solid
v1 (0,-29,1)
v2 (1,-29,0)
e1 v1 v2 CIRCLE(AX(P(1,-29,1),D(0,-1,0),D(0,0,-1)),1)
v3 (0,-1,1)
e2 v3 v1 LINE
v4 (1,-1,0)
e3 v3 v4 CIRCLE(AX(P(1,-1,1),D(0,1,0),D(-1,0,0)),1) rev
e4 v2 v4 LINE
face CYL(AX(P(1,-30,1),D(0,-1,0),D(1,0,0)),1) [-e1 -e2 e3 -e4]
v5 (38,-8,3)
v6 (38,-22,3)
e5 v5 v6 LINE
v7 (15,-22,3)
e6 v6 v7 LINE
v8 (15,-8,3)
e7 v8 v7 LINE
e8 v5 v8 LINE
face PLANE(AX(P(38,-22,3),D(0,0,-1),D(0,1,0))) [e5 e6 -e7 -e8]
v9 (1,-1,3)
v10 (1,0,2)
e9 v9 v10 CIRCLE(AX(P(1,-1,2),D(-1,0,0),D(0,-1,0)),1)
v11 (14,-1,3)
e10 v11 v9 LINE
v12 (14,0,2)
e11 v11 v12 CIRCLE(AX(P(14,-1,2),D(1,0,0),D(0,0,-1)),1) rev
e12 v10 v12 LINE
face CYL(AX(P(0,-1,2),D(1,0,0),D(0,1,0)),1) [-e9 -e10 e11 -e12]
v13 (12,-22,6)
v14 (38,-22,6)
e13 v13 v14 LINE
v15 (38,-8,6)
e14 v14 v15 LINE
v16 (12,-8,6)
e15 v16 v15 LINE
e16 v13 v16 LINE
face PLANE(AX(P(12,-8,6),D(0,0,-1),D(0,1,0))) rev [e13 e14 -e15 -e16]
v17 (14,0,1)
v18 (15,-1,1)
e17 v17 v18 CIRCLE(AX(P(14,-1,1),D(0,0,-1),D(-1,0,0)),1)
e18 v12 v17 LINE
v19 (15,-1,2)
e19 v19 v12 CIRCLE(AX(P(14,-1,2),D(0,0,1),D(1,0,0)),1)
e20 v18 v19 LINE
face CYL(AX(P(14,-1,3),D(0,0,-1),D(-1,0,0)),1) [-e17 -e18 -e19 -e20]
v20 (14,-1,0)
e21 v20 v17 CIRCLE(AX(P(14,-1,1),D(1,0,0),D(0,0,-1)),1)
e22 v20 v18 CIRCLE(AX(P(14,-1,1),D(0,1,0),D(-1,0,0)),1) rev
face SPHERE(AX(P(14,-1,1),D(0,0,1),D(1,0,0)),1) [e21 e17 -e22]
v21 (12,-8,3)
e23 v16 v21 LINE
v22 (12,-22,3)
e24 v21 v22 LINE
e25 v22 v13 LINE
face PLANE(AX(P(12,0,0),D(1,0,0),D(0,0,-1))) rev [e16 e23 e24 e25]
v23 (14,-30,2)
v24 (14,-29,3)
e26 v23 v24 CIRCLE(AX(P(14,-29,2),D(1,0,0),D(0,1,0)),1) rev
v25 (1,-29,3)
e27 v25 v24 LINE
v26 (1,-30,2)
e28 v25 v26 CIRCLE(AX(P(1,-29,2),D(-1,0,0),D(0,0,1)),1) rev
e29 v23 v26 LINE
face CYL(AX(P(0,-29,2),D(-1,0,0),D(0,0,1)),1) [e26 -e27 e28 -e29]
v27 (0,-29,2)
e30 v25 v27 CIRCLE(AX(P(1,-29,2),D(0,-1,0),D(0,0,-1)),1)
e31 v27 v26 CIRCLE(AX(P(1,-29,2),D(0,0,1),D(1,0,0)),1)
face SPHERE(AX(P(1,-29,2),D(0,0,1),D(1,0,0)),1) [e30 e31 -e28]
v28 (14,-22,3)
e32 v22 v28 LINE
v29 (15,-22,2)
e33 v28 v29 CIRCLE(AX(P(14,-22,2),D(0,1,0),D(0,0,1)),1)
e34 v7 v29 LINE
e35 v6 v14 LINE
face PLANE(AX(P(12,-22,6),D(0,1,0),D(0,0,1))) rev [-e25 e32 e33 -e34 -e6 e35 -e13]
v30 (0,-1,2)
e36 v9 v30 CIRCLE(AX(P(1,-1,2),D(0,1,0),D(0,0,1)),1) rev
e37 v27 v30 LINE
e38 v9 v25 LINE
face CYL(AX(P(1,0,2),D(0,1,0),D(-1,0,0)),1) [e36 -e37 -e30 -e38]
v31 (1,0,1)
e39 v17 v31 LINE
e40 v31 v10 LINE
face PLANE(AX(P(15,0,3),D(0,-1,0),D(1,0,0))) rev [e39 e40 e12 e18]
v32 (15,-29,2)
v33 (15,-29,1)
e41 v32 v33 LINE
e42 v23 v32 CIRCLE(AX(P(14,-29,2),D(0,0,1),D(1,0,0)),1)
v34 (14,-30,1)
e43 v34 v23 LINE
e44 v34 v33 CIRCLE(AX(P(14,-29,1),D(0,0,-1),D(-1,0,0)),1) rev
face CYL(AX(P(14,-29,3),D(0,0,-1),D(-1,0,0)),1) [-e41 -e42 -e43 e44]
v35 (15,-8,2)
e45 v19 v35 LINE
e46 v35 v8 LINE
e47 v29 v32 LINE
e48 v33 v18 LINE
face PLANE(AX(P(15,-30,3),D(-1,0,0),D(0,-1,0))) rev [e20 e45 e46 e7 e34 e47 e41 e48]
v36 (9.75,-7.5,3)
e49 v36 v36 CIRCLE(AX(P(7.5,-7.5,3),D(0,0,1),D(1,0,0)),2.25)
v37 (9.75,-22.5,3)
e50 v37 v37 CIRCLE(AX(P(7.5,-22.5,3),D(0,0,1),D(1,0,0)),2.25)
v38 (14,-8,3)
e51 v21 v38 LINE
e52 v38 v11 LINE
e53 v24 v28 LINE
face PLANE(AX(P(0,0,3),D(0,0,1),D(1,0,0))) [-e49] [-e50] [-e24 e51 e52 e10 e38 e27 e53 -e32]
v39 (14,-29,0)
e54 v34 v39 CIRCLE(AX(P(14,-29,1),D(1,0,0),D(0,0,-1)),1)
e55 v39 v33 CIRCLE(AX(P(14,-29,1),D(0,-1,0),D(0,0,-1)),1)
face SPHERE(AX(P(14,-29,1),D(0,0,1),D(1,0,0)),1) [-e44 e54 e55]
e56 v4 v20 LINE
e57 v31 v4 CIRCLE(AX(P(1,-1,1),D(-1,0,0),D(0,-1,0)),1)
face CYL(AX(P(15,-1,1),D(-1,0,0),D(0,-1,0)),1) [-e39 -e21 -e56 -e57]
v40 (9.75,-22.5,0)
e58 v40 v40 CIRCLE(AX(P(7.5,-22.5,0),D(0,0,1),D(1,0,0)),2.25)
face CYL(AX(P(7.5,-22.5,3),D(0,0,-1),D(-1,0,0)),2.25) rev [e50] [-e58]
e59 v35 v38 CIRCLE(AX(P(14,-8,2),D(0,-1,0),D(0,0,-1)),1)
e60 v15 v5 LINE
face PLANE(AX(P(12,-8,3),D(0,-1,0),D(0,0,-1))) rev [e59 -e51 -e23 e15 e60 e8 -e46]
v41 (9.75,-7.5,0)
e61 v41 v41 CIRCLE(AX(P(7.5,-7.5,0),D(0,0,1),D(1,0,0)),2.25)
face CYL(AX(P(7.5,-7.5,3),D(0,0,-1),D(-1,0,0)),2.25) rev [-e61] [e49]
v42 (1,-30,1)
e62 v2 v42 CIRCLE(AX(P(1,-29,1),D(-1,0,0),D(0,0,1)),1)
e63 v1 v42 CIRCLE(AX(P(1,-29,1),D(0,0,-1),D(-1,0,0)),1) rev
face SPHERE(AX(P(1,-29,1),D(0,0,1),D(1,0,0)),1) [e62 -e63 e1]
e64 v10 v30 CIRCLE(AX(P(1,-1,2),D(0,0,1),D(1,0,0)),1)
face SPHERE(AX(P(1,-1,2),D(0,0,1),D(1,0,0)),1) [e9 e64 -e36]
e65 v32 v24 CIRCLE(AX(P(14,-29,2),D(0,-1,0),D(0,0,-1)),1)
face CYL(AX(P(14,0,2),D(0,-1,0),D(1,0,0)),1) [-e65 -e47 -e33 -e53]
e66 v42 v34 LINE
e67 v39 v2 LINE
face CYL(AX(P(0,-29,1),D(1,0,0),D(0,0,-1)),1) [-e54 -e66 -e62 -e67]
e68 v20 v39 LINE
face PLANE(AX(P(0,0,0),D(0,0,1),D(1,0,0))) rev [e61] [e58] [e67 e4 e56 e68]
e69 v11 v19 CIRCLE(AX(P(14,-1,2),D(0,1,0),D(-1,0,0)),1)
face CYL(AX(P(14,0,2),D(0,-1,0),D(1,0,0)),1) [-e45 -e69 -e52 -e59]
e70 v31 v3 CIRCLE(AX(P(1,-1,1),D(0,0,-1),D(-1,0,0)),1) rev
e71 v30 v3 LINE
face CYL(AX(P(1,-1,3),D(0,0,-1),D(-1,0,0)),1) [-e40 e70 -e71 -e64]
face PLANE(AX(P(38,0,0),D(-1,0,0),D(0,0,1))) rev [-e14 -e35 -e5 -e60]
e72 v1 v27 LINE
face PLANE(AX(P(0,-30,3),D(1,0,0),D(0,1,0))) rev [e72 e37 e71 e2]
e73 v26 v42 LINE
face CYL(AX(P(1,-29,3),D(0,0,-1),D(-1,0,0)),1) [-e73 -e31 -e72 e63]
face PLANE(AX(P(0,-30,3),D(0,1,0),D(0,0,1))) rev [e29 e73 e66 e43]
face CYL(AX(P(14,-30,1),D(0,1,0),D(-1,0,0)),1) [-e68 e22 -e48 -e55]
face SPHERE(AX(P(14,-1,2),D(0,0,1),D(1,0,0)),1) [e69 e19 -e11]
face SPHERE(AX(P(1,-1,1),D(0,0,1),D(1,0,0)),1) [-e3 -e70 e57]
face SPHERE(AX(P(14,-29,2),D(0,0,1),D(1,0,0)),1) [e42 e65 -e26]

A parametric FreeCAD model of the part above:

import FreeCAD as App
import Part
import Sketcher
Q = App.Units.Quantity


def edges_at(feature, points):
    """Names of the edges that pass closest to the given points."""
    edges = feature.Shape.Edges
    near = lambda p: min(range(len(edges)), key=lambda i: edges[i].distToShape(Part.Vertex(*p))[0])
    return sorted({f"Edge{near(p) + 1}" for p in points})


def add_polygon(sketch, points):
    """Adds a closed chain of lines whose ends are joined by coincident constraints."""
    first, n = sketch.GeometryCount, len(points)
    for a, b in zip(points, points[1:] + points[:1]):
        sketch.addGeometry(Part.LineSegment(App.Vector(*a, 0), App.Vector(*b, 0)), False)
    for i in range(n):
        sketch.addConstraint(Sketcher.Constraint("Coincident", first + i, 2, first + (i + 1) % n, 1))

doc = App.newDocument("Part")
body = doc.addObject("PartDesign::Body", "Body")

sketch1 = body.newObject("Sketcher::SketchObject", "Sketch")
sketch1.AttachmentSupport = (doc.getObject("XY_Plane"), [""])
sketch1.MapMode = "FlatFace"
add_polygon(sketch1, [(0, 0), (0, -30), (15, -30), (15, 0)])
sketch1.addGeometry(Part.Circle(App.Vector(7.5, -22.5, 0), App.Vector(0, 0, 1), 2.25), False)
sketch1.addGeometry(Part.Circle(App.Vector(7.5, -7.5, 0), App.Vector(0, 0, 1), 2.25), False)
sketch1.addConstraint([
    Sketcher.Constraint("Vertical", 0),
    Sketcher.Constraint("Horizontal", 1),
    Sketcher.Constraint("Vertical", 2),
    Sketcher.Constraint("Horizontal", 3),
    Sketcher.Constraint("Coincident", 3, 2, -1, 1),
    Sketcher.Constraint("Equal", 4, 5),
    Sketcher.Constraint("Vertical", 4, 3, 5, 3),
    Sketcher.Constraint("Diameter", 4, Q("4.5 mm")),
    Sketcher.Constraint("DistanceX", 1, 1, 1, 2, Q("15 mm")),
    Sketcher.Constraint("DistanceY", 0, 2, 0, 1, Q("30 mm")),
    Sketcher.Constraint("DistanceY", 4, 3, 5, 3, Q("15 mm")),
    Sketcher.Constraint("DistanceX", -1, 1, 4, 3, Q("7.5 mm")),
    Sketcher.Constraint("DistanceY", 4, 3, -1, 1, Q("22.5 mm")),
])
pad1 = body.newObject("PartDesign::Pad", "Pad")
pad1.Profile = sketch1
pad1.Length = 3

sketch2 = body.newObject("Sketcher::SketchObject", "Sketch001")
sketch2.AttachmentSupport = (doc.getObject("YZ_Plane"), [""])
sketch2.MapMode = "FlatFace"
sketch2.AttachmentOffset = App.Placement(App.Vector(0, 0, 15), App.Rotation())
add_polygon(sketch2, [(-8, 3), (-22, 3), (-22, 6), (-8, 6)])
sketch2.addConstraint([
    Sketcher.Constraint("Horizontal", 0),
    Sketcher.Constraint("Vertical", 1),
    Sketcher.Constraint("Horizontal", 2),
    Sketcher.Constraint("Vertical", 3),
    Sketcher.Constraint("DistanceX", 0, 2, 0, 1, Q("14 mm")),
    Sketcher.Constraint("DistanceY", 1, 1, 1, 2, Q("3 mm")),
    Sketcher.Constraint("DistanceX", 0, 2, -1, 1, Q("22 mm")),
    Sketcher.Constraint("DistanceY", -1, 1, 0, 2, Q("3 mm")),
])
pad2 = body.newObject("PartDesign::Pad", "Pad001")
pad2.Profile = sketch2
pad2.Length = 3
pad2.Reversed = True

sketch3 = body.newObject("Sketcher::SketchObject", "Sketch002")
sketch3.AttachmentSupport = (doc.getObject("YZ_Plane"), [""])
sketch3.MapMode = "FlatFace"
sketch3.AttachmentOffset = App.Placement(App.Vector(0, 0, 12), App.Rotation())
add_polygon(sketch3, [(-8, 3), (-22, 3), (-22, 6), (-8, 6)])
sketch3.addConstraint([
    Sketcher.Constraint("Horizontal", 0),
    Sketcher.Constraint("Vertical", 1),
    Sketcher.Constraint("Horizontal", 2),
    Sketcher.Constraint("Vertical", 3),
    Sketcher.Constraint("DistanceX", 0, 2, 0, 1, Q("14 mm")),
    Sketcher.Constraint("DistanceY", 1, 1, 1, 2, Q("3 mm")),
    Sketcher.Constraint("DistanceX", 0, 2, -1, 1, Q("22 mm")),
    Sketcher.Constraint("DistanceY", -1, 1, 0, 2, Q("3 mm")),
])
pad3 = body.newObject("PartDesign::Pad", "Pad002")
pad3.Profile = sketch3
pad3.Length = 26
doc.recompute()

fillet = body.newObject("PartDesign::Fillet", "Fillet")
fillet.Base = (pad3, edges_at(pad3, [
    (7.5, -30, 3),
    (7.5, -30, 0),
    (7.5, 0, 0),
    (7.5, 0, 3),
    (0, 0, 1.5),
    (0, -15, 3),
    (0, -30, 1.5),
    (0, -15, 0),
    (15, -30, 1.5),
    (15, 0, 1.5),
    (15, -4, 3),
    (15, -26, 3),
    (15, -15, 0),
]))
fillet.Radius = 1

doc.recompute()
